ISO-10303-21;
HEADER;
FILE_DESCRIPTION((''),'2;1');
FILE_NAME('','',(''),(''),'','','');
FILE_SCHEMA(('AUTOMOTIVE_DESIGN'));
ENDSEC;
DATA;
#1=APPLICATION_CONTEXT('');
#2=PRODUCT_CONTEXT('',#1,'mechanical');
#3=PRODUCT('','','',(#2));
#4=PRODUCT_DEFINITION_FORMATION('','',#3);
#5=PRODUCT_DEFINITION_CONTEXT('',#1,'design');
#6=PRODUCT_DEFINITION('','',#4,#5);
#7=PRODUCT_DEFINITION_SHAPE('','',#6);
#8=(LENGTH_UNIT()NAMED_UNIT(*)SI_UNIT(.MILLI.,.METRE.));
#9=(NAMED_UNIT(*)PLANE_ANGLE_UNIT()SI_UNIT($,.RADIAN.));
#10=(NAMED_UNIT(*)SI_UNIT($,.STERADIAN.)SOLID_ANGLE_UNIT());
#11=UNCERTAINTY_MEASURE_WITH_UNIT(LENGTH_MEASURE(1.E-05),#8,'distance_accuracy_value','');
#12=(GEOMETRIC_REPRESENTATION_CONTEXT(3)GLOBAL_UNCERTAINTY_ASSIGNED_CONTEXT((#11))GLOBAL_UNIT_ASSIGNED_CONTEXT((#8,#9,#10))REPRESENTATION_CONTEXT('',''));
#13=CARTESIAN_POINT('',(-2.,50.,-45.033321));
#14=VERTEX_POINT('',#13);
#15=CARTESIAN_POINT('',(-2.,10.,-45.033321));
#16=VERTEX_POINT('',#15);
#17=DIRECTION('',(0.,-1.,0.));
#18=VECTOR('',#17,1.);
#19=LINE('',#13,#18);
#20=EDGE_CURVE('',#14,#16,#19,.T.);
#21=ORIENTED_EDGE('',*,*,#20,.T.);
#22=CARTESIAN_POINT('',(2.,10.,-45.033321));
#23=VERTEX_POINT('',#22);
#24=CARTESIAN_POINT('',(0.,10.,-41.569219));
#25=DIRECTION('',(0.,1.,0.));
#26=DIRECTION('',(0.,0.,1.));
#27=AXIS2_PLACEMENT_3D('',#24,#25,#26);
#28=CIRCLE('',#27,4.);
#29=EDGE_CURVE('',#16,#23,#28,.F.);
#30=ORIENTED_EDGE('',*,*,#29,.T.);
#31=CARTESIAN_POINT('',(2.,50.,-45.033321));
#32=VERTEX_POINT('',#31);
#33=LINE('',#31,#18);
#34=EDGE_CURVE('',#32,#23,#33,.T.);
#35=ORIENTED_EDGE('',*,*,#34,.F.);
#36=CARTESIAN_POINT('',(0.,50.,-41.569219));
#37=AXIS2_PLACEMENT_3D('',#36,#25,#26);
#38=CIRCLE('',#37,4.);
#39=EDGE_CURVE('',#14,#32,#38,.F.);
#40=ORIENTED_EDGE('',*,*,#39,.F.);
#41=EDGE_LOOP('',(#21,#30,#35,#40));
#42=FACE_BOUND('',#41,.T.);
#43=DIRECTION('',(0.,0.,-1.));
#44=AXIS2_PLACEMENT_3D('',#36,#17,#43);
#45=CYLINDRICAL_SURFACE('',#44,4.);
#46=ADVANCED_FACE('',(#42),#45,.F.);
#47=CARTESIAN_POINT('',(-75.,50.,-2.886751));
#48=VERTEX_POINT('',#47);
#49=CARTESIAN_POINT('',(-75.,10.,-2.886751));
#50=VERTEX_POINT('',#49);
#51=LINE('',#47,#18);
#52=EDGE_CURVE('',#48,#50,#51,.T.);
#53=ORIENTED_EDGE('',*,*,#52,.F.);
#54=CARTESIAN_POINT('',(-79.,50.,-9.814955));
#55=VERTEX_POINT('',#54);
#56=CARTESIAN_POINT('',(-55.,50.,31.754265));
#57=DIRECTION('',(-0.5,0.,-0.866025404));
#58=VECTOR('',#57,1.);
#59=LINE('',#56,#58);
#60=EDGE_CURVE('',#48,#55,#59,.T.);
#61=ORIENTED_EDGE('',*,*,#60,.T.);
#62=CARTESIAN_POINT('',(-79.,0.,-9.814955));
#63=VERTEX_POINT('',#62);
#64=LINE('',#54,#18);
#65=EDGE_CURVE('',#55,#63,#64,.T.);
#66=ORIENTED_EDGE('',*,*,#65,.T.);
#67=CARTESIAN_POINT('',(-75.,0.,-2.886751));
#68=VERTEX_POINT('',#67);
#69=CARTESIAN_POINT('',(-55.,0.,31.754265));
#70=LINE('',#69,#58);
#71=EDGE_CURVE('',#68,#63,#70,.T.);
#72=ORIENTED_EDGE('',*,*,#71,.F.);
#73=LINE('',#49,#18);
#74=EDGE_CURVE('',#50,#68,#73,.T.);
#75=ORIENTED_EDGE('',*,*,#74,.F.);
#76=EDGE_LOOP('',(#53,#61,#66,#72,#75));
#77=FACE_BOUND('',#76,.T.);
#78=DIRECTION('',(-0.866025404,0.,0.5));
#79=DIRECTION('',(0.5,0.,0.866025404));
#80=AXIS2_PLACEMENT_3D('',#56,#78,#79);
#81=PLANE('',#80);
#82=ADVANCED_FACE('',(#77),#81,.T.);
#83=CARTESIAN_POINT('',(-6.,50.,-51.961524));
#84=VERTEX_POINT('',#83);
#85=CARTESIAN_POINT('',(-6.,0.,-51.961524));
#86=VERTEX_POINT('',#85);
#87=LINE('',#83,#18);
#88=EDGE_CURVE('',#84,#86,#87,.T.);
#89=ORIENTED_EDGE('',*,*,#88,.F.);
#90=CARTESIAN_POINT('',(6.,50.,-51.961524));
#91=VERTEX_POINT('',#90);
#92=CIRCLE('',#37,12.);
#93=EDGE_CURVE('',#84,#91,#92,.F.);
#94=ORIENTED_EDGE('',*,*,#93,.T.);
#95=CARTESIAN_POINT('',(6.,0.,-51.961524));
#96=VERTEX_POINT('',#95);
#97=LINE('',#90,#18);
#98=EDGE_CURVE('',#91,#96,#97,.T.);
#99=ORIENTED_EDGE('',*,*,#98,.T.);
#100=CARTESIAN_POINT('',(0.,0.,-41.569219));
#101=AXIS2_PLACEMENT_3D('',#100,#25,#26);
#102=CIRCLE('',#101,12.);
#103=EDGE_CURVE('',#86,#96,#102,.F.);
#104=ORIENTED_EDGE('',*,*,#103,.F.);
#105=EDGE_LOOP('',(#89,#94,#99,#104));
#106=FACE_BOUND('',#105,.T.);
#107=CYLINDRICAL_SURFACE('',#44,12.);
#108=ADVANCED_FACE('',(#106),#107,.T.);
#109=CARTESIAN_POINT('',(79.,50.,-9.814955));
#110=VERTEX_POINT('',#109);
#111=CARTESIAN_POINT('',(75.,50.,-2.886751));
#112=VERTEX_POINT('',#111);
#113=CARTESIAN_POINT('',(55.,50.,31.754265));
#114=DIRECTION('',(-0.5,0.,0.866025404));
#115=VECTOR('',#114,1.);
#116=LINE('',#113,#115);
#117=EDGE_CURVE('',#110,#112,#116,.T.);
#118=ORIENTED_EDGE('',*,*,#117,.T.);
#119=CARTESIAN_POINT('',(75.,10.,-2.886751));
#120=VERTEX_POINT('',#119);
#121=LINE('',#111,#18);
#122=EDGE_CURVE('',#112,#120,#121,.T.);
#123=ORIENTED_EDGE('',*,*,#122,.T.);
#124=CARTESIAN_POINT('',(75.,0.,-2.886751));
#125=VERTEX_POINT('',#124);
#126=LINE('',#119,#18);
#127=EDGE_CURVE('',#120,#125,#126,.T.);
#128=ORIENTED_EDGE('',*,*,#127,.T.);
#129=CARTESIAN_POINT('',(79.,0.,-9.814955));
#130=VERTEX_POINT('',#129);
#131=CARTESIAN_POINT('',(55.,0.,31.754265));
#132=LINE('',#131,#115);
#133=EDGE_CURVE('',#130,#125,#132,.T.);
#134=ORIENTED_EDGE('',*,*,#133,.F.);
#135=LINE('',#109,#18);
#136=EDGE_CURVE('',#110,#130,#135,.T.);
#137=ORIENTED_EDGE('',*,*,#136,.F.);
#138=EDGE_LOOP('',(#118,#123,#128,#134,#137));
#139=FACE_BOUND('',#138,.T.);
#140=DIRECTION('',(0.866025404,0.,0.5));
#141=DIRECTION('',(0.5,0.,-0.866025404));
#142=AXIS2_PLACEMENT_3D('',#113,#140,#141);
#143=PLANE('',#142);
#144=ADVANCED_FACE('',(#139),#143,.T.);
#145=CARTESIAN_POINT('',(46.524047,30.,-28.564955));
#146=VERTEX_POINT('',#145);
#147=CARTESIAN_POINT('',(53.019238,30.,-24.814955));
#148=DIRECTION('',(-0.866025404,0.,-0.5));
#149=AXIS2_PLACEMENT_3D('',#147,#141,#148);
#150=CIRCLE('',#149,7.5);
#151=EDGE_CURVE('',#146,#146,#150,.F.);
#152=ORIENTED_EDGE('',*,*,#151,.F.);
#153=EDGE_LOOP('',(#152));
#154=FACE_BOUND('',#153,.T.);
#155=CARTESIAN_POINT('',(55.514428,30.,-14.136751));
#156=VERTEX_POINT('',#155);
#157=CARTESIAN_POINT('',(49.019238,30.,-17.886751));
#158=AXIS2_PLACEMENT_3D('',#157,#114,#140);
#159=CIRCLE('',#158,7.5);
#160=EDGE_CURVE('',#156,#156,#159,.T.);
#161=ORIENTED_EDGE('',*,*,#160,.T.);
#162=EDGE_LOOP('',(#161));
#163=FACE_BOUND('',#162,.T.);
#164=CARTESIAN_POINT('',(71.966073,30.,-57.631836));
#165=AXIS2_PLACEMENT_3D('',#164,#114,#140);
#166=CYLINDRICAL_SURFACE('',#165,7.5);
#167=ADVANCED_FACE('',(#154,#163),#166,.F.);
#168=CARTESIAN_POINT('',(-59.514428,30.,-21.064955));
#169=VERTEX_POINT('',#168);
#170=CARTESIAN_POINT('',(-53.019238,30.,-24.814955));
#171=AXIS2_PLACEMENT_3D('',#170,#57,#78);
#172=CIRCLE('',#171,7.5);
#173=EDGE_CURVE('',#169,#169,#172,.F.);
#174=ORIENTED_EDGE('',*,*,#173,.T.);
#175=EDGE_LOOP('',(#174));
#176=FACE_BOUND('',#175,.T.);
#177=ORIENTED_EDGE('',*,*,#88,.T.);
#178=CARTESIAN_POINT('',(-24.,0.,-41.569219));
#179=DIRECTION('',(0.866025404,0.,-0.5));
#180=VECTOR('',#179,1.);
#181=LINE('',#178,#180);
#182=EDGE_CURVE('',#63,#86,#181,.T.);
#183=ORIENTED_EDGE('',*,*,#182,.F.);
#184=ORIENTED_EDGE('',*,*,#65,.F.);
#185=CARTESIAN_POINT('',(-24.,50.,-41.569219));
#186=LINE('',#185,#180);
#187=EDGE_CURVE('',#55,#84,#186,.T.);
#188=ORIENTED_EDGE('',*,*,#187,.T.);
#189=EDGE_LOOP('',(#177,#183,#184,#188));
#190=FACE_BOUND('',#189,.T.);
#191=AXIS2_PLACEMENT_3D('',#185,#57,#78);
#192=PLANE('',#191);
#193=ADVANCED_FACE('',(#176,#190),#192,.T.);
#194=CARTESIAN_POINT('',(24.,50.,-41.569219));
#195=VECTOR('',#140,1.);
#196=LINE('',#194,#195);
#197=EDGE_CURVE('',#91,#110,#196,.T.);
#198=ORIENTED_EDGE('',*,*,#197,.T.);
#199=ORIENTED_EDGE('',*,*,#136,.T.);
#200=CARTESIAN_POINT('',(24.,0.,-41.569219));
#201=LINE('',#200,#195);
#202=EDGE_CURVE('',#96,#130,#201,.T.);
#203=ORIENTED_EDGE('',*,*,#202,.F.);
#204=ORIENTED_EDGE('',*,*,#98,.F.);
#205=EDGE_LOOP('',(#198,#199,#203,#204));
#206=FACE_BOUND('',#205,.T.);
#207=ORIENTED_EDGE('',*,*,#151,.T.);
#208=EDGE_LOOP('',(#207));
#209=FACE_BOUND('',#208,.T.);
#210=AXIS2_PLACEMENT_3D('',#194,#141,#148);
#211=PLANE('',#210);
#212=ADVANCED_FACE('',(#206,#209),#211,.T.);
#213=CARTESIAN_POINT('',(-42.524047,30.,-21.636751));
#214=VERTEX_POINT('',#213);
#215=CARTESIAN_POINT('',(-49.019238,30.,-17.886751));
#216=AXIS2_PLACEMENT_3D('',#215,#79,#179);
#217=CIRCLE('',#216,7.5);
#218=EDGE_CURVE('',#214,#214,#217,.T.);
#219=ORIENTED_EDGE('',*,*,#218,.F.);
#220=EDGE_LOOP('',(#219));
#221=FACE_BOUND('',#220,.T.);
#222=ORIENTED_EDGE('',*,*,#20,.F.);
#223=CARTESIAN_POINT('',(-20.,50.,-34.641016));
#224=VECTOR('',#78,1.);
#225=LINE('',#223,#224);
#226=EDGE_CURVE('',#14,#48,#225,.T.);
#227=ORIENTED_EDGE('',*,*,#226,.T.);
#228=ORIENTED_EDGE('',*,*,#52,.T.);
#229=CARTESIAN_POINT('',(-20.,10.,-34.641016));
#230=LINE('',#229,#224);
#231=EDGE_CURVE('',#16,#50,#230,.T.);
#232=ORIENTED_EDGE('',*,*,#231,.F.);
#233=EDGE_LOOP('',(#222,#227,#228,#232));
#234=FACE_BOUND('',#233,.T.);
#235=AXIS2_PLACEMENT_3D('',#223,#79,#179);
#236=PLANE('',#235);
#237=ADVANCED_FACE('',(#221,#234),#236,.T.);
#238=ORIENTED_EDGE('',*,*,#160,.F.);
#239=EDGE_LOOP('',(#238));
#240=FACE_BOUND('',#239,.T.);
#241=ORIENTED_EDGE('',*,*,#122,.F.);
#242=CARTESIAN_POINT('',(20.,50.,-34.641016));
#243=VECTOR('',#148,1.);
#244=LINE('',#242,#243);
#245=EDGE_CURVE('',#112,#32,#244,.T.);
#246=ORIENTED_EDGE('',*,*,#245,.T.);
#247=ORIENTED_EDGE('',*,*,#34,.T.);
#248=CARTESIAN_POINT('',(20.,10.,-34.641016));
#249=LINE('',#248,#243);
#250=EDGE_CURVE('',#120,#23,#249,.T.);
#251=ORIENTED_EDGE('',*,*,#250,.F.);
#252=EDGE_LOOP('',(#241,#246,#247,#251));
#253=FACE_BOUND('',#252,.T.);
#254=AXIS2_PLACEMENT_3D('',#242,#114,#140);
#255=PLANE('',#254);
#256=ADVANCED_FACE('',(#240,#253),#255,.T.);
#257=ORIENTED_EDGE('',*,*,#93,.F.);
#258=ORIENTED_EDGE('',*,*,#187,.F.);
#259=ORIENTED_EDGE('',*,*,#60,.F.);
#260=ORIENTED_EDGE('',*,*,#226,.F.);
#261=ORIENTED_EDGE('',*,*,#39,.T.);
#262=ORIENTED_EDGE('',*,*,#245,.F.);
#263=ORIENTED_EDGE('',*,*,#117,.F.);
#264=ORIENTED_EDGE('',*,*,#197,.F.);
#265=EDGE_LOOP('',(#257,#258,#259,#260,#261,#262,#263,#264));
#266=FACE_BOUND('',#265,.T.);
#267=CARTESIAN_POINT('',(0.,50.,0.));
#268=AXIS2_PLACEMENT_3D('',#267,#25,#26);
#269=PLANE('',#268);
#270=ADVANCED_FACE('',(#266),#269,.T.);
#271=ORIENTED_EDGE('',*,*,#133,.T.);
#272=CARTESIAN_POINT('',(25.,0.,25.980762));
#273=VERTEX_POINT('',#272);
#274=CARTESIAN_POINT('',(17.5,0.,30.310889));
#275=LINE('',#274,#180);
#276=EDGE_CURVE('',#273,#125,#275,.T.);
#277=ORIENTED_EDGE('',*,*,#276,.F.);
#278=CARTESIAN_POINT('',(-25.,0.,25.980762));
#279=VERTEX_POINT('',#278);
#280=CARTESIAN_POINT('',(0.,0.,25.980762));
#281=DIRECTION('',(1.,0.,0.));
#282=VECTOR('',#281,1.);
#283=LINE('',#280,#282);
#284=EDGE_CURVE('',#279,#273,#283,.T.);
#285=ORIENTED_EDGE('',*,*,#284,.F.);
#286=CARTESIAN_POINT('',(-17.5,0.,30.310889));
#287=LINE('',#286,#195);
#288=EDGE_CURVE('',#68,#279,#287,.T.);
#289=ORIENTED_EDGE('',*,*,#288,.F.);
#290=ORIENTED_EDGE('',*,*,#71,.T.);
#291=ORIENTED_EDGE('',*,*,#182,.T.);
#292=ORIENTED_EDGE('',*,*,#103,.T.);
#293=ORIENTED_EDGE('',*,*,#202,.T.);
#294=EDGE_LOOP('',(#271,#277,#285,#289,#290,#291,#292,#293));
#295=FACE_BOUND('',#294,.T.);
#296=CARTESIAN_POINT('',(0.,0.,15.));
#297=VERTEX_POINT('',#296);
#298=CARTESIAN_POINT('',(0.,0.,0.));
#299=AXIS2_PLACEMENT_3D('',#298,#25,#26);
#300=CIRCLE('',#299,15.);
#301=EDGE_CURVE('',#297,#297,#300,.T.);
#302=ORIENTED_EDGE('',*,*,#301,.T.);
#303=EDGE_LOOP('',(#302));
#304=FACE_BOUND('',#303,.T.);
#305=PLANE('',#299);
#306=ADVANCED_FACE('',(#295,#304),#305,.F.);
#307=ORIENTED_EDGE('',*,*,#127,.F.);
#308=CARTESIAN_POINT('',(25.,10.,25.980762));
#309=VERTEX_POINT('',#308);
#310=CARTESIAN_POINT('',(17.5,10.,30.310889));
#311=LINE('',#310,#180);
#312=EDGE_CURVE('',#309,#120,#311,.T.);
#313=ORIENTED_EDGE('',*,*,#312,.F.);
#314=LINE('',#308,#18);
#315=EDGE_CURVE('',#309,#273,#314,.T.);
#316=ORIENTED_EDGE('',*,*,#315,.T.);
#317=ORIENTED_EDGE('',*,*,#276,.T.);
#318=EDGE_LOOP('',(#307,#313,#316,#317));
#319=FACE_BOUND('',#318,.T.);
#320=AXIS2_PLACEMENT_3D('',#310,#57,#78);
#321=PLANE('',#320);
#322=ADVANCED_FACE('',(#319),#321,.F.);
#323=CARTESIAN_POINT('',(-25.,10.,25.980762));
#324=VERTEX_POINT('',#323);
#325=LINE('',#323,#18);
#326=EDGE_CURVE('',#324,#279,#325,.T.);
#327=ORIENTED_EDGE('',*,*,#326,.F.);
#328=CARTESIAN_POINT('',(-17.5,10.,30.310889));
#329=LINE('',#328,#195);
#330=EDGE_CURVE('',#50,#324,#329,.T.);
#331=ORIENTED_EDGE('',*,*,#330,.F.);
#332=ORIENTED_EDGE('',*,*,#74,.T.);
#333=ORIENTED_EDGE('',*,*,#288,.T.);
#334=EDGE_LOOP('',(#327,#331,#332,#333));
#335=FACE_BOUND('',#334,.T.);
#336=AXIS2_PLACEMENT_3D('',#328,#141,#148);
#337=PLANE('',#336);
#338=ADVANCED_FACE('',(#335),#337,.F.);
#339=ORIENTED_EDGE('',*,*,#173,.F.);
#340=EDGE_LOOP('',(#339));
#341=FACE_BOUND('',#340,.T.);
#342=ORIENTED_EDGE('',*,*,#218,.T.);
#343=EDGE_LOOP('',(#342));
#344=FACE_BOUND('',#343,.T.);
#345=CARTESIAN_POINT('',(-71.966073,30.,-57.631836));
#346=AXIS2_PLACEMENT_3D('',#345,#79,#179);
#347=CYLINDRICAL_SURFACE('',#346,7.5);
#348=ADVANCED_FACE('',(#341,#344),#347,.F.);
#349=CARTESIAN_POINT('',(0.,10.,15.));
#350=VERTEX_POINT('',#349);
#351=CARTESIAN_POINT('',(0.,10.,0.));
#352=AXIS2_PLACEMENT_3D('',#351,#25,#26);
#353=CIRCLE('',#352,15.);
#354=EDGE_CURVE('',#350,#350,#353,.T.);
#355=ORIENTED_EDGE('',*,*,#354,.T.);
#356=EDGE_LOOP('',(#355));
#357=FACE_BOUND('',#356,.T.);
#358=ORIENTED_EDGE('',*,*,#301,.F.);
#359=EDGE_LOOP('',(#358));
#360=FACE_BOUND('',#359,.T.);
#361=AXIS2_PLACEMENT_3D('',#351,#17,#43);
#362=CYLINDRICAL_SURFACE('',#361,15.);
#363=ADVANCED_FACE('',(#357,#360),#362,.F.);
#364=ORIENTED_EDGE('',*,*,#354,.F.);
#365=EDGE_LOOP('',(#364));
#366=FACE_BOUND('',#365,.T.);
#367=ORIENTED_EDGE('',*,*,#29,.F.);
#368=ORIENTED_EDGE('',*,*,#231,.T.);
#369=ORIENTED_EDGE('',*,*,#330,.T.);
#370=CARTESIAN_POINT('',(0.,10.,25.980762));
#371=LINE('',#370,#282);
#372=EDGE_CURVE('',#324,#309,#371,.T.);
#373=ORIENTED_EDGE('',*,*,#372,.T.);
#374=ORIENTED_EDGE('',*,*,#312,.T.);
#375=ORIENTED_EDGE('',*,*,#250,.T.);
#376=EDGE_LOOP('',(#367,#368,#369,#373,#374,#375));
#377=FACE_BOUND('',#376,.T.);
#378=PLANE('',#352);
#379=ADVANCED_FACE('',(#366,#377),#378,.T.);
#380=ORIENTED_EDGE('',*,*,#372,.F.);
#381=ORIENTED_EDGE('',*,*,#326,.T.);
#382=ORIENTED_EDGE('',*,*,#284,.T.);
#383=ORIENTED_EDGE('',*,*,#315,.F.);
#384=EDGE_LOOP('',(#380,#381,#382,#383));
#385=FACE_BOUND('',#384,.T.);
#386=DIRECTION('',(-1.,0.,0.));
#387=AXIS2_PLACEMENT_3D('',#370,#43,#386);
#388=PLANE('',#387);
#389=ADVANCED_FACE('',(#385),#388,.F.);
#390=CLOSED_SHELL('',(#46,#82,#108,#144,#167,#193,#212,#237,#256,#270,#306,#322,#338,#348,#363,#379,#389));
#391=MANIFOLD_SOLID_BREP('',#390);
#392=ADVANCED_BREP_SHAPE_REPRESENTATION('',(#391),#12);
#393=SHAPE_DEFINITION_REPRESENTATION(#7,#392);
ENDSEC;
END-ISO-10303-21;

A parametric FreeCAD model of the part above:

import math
import FreeCAD as App
import Part
import Sketcher
Q = App.Units.Quantity

doc = App.newDocument("Part")
body = doc.addObject("PartDesign::Body", "Body")

# Sketch on XZ plane
sketch1 = body.newObject("Sketcher::SketchObject", "Sketch")
sketch1.AttachmentSupport = (doc.getObject("XZ_Plane"), [""])
sketch1.MapMode = "FlatFace"
sketch1.addGeometry([
    Part.LineSegment(App.Vector(-75, -2.9, 0), App.Vector(-2, -45, 0)),  # 0
    Part.ArcOfCircle(Part.Circle(App.Vector(0, -41.6, 0), App.Vector(0, 0, 1), 4), math.radians(-120), math.radians(-60)),  # 1
    Part.LineSegment(App.Vector(2, -45, 0), App.Vector(75, -2.9, 0)),  # 2
    Part.LineSegment(App.Vector(75, -2.9, 0), App.Vector(79, -9.8, 0)),  # 3
    Part.LineSegment(App.Vector(79, -9.8, 0), App.Vector(6, -52, 0)),  # 4
    Part.ArcOfCircle(Part.Circle(App.Vector(0, -41.6, 0), App.Vector(0, 0, 1), 12), math.radians(-120), math.radians(-60)),  # 5
    Part.LineSegment(App.Vector(-6, -52, 0), App.Vector(-79, -9.8, 0)),  # 6
    Part.LineSegment(App.Vector(-79, -9.8, 0), App.Vector(-75, -2.9, 0)),  # 7
], False)
sketch1.addConstraint([
    Sketcher.Constraint("Tangent", 0, 2, 1, 1),
    Sketcher.Constraint("Tangent", 1, 2, 2, 1),
    Sketcher.Constraint("Coincident", 2, 2, 3, 1),
    Sketcher.Constraint("Coincident", 3, 2, 4, 1),
    Sketcher.Constraint("Tangent", 4, 2, 5, 2),
    Sketcher.Constraint("Tangent", 5, 1, 6, 1),
    Sketcher.Constraint("Coincident", 6, 2, 7, 1),
    Sketcher.Constraint("Coincident", 7, 2, 0, 1),
    Sketcher.Constraint("Coincident", 5, 3, 1, 3),
    Sketcher.Constraint("Symmetric", 0, 2, 1, 2, -2),
    Sketcher.Constraint("Symmetric", 3, 2, 6, 2, -2),
    Sketcher.Constraint("Perpendicular", 2, 3),
    Sketcher.Constraint("Perpendicular", 3, 4),
    Sketcher.Constraint("Perpendicular", 6, 7),
    Sketcher.Constraint("Radius", 1, Q("4 mm")),
    Sketcher.Constraint("Radius", 5, Q("12 mm")),
    Sketcher.Constraint("Angle", 0, Q("-30 deg")),
    Sketcher.Constraint("DistanceX", -1, 1, 2, 2, Q("75 mm")),
    Sketcher.Constraint("DistanceY", 1, 3, -1, 1, Q("41.569219 mm")),
])
pad1 = body.newObject("PartDesign::Pad", "Pad")
pad1.Profile = sketch1
pad1.Length = 50
pad1.Reversed = True

# Sketch on XZ plane
sketch2 = body.newObject("Sketcher::SketchObject", "Sketch001")
sketch2.AttachmentSupport = (doc.getObject("XZ_Plane"), [""])
sketch2.MapMode = "FlatFace"
sketch2.addGeometry([
    Part.ArcOfCircle(Part.Circle(App.Vector(0, -41.6, 0), App.Vector(0, 0, 1), 4), math.radians(-120), math.radians(-60)),  # 0
    Part.LineSegment(App.Vector(-2, -45, 0), App.Vector(-75, -2.9, 0)),  # 1
    Part.LineSegment(App.Vector(-75, -2.9, 0), App.Vector(-25, 26, 0)),  # 2
    Part.LineSegment(App.Vector(-25, 26, 0), App.Vector(25, 26, 0)),  # 3
    Part.LineSegment(App.Vector(25, 26, 0), App.Vector(75, -2.9, 0)),  # 4
    Part.LineSegment(App.Vector(75, -2.9, 0), App.Vector(2, -45, 0)),  # 5
    Part.Circle(App.Vector(0, 0, 0), App.Vector(0, 0, 1), 15),  # 6
], False)
sketch2.addConstraint([
    Sketcher.Constraint("Tangent", 0, 1, 1, 1),
    Sketcher.Constraint("Coincident", 1, 2, 2, 1),
    Sketcher.Constraint("Coincident", 2, 2, 3, 1),
    Sketcher.Constraint("Coincident", 3, 2, 4, 1),
    Sketcher.Constraint("Coincident", 4, 2, 5, 1),
    Sketcher.Constraint("Tangent", 5, 2, 0, 2),
    Sketcher.Constraint("Horizontal", 3),
    Sketcher.Constraint("Coincident", 6, 3, -1, 1),
    Sketcher.Constraint("Symmetric", 1, 2, 4, 2, -2),
    Sketcher.Constraint("PointOnObject", 0, 3, -2),
    Sketcher.Constraint("Parallel", 1, 4),
    Sketcher.Constraint("Parallel", 2, 5),
    Sketcher.Constraint("Diameter", 6, Q("30 mm")),
    Sketcher.Constraint("Radius", 0, Q("4 mm")),
    Sketcher.Constraint("DistanceX", 3, 1, 3, 2, Q("50 mm")),
    Sketcher.Constraint("Angle", 1, Q("150 deg")),
    Sketcher.Constraint("DistanceX", 1, 2, -1, 1, Q("75 mm")),
    Sketcher.Constraint("DistanceY", 0, 3, -1, 1, Q("41.569219 mm")),
])
pad2 = body.newObject("PartDesign::Pad", "Pad001")
pad2.Profile = sketch2
pad2.Length = 10
pad2.Reversed = True

# Sketch on an angled plane
sketch3 = body.newObject("Sketcher::SketchObject", "Sketch002")
sketch3.Placement = App.Placement(App.Vector(-20, 0, -34.641016), App.Rotation(App.Vector(0.866025404, 0, -0.5), App.Vector(0, 1, 0), App.Vector(0.5, 0, 0.866025404), "ZXY"))
sketch3.addGeometry(Part.Circle(App.Vector(-34, 30, 0), App.Vector(0, 0, 1), 8), False)
sketch3.addConstraint([
    Sketcher.Constraint("Diameter", 0, Q("15 mm")),
    Sketcher.Constraint("DistanceY", -1, 1, 0, 3, Q("30 mm")),
    Sketcher.Constraint("DistanceX", 0, 3, -1, 1, Q("33.50853 mm")),
])
pocket1 = body.newObject("PartDesign::Pocket", "Pocket")
pocket1.Profile = sketch3
pocket1.Type = "UpToFirst"

# Sketch on an angled plane
sketch4 = body.newObject("Sketcher::SketchObject", "Sketch003")
sketch4.Placement = App.Placement(App.Vector(20, 0, -34.641016), App.Rotation(App.Vector(0.866025404, 0, 0.5), App.Vector(0, 1, 0), App.Vector(-0.5, 0, 0.866025404), "ZXY"))
sketch4.addGeometry(Part.Circle(App.Vector(34, 30, 0), App.Vector(0, 0, 1), 8), False)
sketch4.addConstraint([
    Sketcher.Constraint("Diameter", 0, Q("15 mm")),
    Sketcher.Constraint("DistanceY", -1, 1, 0, 3, Q("30 mm")),
    Sketcher.Constraint("DistanceX", -1, 1, 0, 3, Q("33.50853 mm")),
])
pocket2 = body.newObject("PartDesign::Pocket", "Pocket001")
pocket2.Profile = sketch4
pocket2.Type = "UpToFirst"

doc.recompute()
